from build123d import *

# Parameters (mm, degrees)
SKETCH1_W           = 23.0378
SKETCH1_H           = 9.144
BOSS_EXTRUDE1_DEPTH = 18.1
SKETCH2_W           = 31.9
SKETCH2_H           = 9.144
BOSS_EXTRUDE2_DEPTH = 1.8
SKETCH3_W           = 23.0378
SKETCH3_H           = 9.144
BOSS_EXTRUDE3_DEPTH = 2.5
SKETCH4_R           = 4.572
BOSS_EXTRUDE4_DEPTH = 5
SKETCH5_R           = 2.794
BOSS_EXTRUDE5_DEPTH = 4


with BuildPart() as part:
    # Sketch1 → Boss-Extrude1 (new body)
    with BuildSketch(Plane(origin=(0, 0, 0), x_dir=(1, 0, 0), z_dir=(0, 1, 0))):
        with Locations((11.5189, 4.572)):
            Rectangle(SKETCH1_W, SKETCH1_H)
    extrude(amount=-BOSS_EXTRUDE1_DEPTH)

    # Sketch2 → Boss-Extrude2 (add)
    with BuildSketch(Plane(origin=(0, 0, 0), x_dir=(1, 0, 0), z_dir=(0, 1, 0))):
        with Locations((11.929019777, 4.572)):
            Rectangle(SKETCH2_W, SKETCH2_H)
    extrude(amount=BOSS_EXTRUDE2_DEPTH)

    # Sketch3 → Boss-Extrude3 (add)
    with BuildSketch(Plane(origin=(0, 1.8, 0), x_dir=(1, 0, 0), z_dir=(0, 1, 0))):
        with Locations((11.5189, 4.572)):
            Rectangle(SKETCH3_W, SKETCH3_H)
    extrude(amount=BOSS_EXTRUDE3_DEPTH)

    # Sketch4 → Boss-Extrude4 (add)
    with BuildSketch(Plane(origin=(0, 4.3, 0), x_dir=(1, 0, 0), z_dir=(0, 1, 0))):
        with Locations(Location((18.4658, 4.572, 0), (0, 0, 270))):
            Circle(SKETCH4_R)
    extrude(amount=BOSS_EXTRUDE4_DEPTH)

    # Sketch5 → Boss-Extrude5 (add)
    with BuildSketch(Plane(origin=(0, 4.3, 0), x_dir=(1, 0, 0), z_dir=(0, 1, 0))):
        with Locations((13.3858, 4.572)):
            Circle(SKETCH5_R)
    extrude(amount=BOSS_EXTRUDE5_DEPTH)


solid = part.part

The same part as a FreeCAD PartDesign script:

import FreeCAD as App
import Part
import Sketcher

V = App.Vector
Q = App.Units.Quantity

doc = App.newDocument("Part")
body = doc.addObject("PartDesign::Body", "Body")

# Sketch on XZ plane
sketch1 = body.newObject("Sketcher::SketchObject", "Sketch")
sketch1.AttachmentSupport = (doc.getObject("XZ_Plane"), [""])
sketch1.MapMode = "FlatFace"
sketch1.addGeometry(Part.LineSegment(V(0, -9, 0), V(0, 0, 0)), False)
sketch1.addGeometry(Part.LineSegment(V(0, 0, 0), V(23, 0, 0)), False)
sketch1.addGeometry(Part.LineSegment(V(23, 0, 0), V(23, -9, 0)), False)
sketch1.addGeometry(Part.LineSegment(V(23, -9, 0), V(0, -9, 0)), False)
sketch1.addConstraint(Sketcher.Constraint("Coincident", 0, 2, 1, 1))
sketch1.addConstraint(Sketcher.Constraint("Coincident", 1, 2, 2, 1))
sketch1.addConstraint(Sketcher.Constraint("Coincident", 2, 2, 3, 1))
sketch1.addConstraint(Sketcher.Constraint("Coincident", 3, 2, 0, 1))
sketch1.addConstraint(Sketcher.Constraint("Vertical", 0))
sketch1.addConstraint(Sketcher.Constraint("Horizontal", 1))
sketch1.addConstraint(Sketcher.Constraint("Vertical", 2))
sketch1.addConstraint(Sketcher.Constraint("Horizontal", 3))
sketch1.addConstraint(Sketcher.Constraint("Coincident", 0, 2, -1, 1))
sketch1.addConstraint(Sketcher.Constraint("DistanceY", 0, 1, 0, 2, Q("9.144 mm")))
sketch1.addConstraint(Sketcher.Constraint("DistanceX", 1, 1, 1, 2, Q("23.0378 mm")))
pad1 = body.newObject("PartDesign::Pad", "Pad")
pad1.Profile = sketch1
pad1.Length = 18.1

# Sketch on XZ plane
sketch2 = body.newObject("Sketcher::SketchObject", "Sketch001")
sketch2.AttachmentSupport = (doc.getObject("XZ_Plane"), [""])
sketch2.MapMode = "FlatFace"
sketch2.addGeometry(Part.LineSegment(V(-4, -9, 0), V(-4, 0, 0)), False)
sketch2.addGeometry(Part.LineSegment(V(-4, 0, 0), V(28, 0, 0)), False)
sketch2.addGeometry(Part.LineSegment(V(28, 0, 0), V(28, -9, 0)), False)
sketch2.addGeometry(Part.LineSegment(V(28, -9, 0), V(-4, -9, 0)), False)
sketch2.addConstraint(Sketcher.Constraint("Coincident", 0, 2, 1, 1))
sketch2.addConstraint(Sketcher.Constraint("Coincident", 1, 2, 2, 1))
sketch2.addConstraint(Sketcher.Constraint("Coincident", 2, 2, 3, 1))
sketch2.addConstraint(Sketcher.Constraint("Coincident", 3, 2, 0, 1))
sketch2.addConstraint(Sketcher.Constraint("Vertical", 0))
sketch2.addConstraint(Sketcher.Constraint("Horizontal", 1))
sketch2.addConstraint(Sketcher.Constraint("Vertical", 2))
sketch2.addConstraint(Sketcher.Constraint("Horizontal", 3))
sketch2.addConstraint(Sketcher.Constraint("PointOnObject", 0, 2, -1))
sketch2.addConstraint(Sketcher.Constraint("DistanceX", 1, 1, 1, 2, Q("31.9 mm")))
sketch2.addConstraint(Sketcher.Constraint("DistanceY", 0, 1, 0, 2, Q("9.144 mm")))
sketch2.addConstraint(Sketcher.Constraint("DistanceX", 0, 2, -1, 1, Q("4.02098 mm")))
pad2 = body.newObject("PartDesign::Pad", "Pad001")
pad2.Profile = sketch2
pad2.Length = 1.8
pad2.Reversed = True

# Sketch on XZ plane
sketch3 = body.newObject("Sketcher::SketchObject", "Sketch002")
sketch3.AttachmentSupport = (doc.getObject("XZ_Plane"), [""])
sketch3.MapMode = "FlatFace"
sketch3.AttachmentOffset = App.Placement(V(0, 0, -1.8), App.Rotation())
sketch3.addGeometry(Part.LineSegment(V(0, -9, 0), V(0, 0, 0)), False)
sketch3.addGeometry(Part.LineSegment(V(0, 0, 0), V(23, 0, 0)), False)
sketch3.addGeometry(Part.LineSegment(V(23, 0, 0), V(23, -9, 0)), False)
sketch3.addGeometry(Part.LineSegment(V(23, -9, 0), V(0, -9, 0)), False)
sketch3.addConstraint(Sketcher.Constraint("Coincident", 0, 2, 1, 1))
sketch3.addConstraint(Sketcher.Constraint("Coincident", 1, 2, 2, 1))
sketch3.addConstraint(Sketcher.Constraint("Coincident", 2, 2, 3, 1))
sketch3.addConstraint(Sketcher.Constraint("Coincident", 3, 2, 0, 1))
sketch3.addConstraint(Sketcher.Constraint("Vertical", 0))
sketch3.addConstraint(Sketcher.Constraint("Horizontal", 1))
sketch3.addConstraint(Sketcher.Constraint("Vertical", 2))
sketch3.addConstraint(Sketcher.Constraint("Horizontal", 3))
sketch3.addConstraint(Sketcher.Constraint("Coincident", 0, 2, -1, 1))
sketch3.addConstraint(Sketcher.Constraint("DistanceY", 0, 1, 0, 2, Q("9.144 mm")))
sketch3.addConstraint(Sketcher.Constraint("DistanceX", 1, 1, 1, 2, Q("23.0378 mm")))
pad3 = body.newObject("PartDesign::Pad", "Pad002")
pad3.Profile = sketch3
pad3.Length = 2.5
pad3.Reversed = True

# Sketch on XZ plane
sketch4 = body.newObject("Sketcher::SketchObject", "Sketch003")
sketch4.AttachmentSupport = (doc.getObject("XZ_Plane"), [""])
sketch4.MapMode = "FlatFace"
sketch4.AttachmentOffset = App.Placement(V(0, 0, -4.3), App.Rotation())
sketch4.addGeometry(Part.Circle(V(18.5, -4.6, 0), V(0, 0, 1), 4.6), False)
sketch4.addConstraint(Sketcher.Constraint("Diameter", 0, Q("9.144 mm")))
sketch4.addConstraint(Sketcher.Constraint("DistanceY", 0, 3, -1, 1, Q("4.572 mm")))
sketch4.addConstraint(Sketcher.Constraint("DistanceX", -1, 1, 0, 3, Q("18.4658 mm")))
pad4 = body.newObject("PartDesign::Pad", "Pad003")
pad4.Profile = sketch4
pad4.Length = 5
pad4.Reversed = True

# Sketch on XZ plane
sketch5 = body.newObject("Sketcher::SketchObject", "Sketch004")
sketch5.AttachmentSupport = (doc.getObject("XZ_Plane"), [""])
sketch5.MapMode = "FlatFace"
sketch5.AttachmentOffset = App.Placement(V(0, 0, -4.3), App.Rotation())
sketch5.addGeometry(Part.Circle(V(13.4, -4.6, 0), V(0, 0, 1), 2.8), False)
sketch5.addConstraint(Sketcher.Constraint("Diameter", 0, Q("5.588 mm")))
sketch5.addConstraint(Sketcher.Constraint("DistanceY", 0, 3, -1, 1, Q("4.572 mm")))
sketch5.addConstraint(Sketcher.Constraint("DistanceX", -1, 1, 0, 3, Q("13.3858 mm")))
pad5 = body.newObject("PartDesign::Pad", "Pad004")
pad5.Profile = sketch5
pad5.Length = 4
pad5.Reversed = True

doc.recompute()
